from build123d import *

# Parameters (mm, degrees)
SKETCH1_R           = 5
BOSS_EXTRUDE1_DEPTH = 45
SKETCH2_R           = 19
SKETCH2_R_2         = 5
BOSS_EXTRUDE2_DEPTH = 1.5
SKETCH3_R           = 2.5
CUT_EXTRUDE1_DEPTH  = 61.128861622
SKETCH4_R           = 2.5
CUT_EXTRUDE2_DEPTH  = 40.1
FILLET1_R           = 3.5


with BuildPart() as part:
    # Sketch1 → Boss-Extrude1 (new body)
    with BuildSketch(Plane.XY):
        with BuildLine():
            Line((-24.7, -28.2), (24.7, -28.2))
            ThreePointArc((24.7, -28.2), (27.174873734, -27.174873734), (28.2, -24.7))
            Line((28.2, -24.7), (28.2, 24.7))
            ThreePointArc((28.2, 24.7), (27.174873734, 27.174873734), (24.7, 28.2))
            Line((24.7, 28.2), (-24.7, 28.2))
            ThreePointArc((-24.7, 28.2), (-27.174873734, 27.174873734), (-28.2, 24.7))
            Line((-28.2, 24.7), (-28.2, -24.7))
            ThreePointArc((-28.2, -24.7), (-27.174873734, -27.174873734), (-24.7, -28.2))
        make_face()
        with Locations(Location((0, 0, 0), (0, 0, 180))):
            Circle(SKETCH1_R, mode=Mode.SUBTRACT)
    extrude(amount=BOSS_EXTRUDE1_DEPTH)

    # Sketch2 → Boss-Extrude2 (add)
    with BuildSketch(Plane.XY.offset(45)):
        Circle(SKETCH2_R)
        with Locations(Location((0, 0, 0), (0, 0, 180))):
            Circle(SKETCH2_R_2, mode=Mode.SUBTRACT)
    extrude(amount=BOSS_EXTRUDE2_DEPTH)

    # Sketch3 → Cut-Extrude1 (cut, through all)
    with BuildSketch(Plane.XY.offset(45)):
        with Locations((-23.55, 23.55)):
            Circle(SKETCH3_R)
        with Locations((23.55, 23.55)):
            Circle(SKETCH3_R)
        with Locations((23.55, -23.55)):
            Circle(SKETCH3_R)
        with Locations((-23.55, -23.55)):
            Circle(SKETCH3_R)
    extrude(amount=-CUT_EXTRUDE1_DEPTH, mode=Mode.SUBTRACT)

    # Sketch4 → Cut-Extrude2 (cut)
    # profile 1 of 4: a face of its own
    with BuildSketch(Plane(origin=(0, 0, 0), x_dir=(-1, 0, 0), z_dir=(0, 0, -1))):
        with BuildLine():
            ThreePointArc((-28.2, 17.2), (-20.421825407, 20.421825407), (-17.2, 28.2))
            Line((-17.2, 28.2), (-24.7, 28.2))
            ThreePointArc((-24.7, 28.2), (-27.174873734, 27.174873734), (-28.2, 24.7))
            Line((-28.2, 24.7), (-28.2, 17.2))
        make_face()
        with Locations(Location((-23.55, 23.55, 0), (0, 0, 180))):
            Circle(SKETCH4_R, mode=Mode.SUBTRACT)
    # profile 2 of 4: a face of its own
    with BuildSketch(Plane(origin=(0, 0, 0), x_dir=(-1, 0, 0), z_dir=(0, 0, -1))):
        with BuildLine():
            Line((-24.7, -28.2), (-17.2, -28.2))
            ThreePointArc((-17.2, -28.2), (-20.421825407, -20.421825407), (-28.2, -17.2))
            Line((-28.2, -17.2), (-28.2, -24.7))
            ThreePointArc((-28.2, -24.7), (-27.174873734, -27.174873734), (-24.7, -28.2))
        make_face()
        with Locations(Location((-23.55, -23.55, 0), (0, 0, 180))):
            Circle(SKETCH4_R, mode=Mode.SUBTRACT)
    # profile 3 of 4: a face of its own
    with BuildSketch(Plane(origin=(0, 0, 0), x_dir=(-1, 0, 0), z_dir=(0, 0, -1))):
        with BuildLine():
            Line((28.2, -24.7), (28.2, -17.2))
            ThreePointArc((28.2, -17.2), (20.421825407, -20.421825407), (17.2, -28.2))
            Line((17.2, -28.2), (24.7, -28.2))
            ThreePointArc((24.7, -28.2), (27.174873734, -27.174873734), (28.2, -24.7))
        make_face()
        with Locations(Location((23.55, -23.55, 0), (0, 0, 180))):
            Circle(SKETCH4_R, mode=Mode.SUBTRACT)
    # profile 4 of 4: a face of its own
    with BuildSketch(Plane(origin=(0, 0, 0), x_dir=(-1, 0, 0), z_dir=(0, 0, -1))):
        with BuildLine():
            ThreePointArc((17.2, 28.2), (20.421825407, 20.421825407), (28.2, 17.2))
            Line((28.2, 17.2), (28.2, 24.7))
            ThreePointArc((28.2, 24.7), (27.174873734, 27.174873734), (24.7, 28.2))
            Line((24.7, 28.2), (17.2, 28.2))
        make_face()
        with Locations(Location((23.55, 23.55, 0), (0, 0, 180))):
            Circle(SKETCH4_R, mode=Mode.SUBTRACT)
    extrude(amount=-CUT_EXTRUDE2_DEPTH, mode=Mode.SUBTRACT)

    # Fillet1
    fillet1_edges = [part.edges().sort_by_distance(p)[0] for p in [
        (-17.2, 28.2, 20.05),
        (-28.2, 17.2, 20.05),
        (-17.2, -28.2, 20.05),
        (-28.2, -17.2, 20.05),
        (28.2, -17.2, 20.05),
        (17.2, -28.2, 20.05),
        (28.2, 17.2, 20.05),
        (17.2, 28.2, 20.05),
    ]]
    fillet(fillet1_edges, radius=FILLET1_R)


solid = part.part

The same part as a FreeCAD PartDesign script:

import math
import FreeCAD as App
import Part
import Sketcher
Q = App.Units.Quantity


def edges_at(feature, points):
    """Names of the edges that pass closest to the given points."""
    edges = feature.Shape.Edges
    near = lambda p: min(range(len(edges)), key=lambda i: edges[i].distToShape(Part.Vertex(*p))[0])
    return sorted({f"Edge{near(p) + 1}" for p in points})

doc = App.newDocument("Part")
body = doc.addObject("PartDesign::Body", "Body")

sketch1 = body.newObject("Sketcher::SketchObject", "Sketch")
sketch1.AttachmentSupport = (doc.getObject("XY_Plane"), [""])
sketch1.MapMode = "FlatFace"
sketch1.addGeometry([
    Part.LineSegment(App.Vector(-24.7, -28.2, 0), App.Vector(24.7, -28.2, 0)),
    Part.ArcOfCircle(Part.Circle(App.Vector(24.7, -24.7, 0), App.Vector(0, 0, 1), 3.5), math.radians(-90), math.radians(0)),
    Part.LineSegment(App.Vector(28.2, -24.7, 0), App.Vector(28.2, 24.7, 0)),
    Part.ArcOfCircle(Part.Circle(App.Vector(24.7, 24.7, 0), App.Vector(0, 0, 1), 3.5), math.radians(0), math.radians(90)),
    Part.LineSegment(App.Vector(24.7, 28.2, 0), App.Vector(-24.7, 28.2, 0)),
    Part.ArcOfCircle(Part.Circle(App.Vector(-24.7, 24.7, 0), App.Vector(0, 0, 1), 3.5), math.radians(90), math.radians(180)),
    Part.LineSegment(App.Vector(-28.2, 24.7, 0), App.Vector(-28.2, -24.7, 0)),
    Part.ArcOfCircle(Part.Circle(App.Vector(-24.7, -24.7, 0), App.Vector(0, 0, 1), 3.5), math.radians(-180), math.radians(-90)),
    Part.Circle(App.Vector(0, 0, 0), App.Vector(0, 0, 1), 5),
], False)
sketch1.addConstraint([
    Sketcher.Constraint("Tangent", 0, 2, 1, 1),
    Sketcher.Constraint("Tangent", 1, 2, 2, 1),
    Sketcher.Constraint("Tangent", 2, 2, 3, 1),
    Sketcher.Constraint("Tangent", 3, 2, 4, 1),
    Sketcher.Constraint("Tangent", 4, 2, 5, 1),
    Sketcher.Constraint("Tangent", 5, 2, 6, 1),
    Sketcher.Constraint("Tangent", 6, 2, 7, 1),
    Sketcher.Constraint("Tangent", 7, 2, 0, 1),
    Sketcher.Constraint("Horizontal", 0),
    Sketcher.Constraint("Vertical", 2),
    Sketcher.Constraint("Horizontal", 4),
    Sketcher.Constraint("Vertical", 6),
    Sketcher.Constraint("Coincident", 8, 3, -1, 1),
    Sketcher.Constraint("Equal", 1, 3),
    Sketcher.Constraint("Equal", 3, 5),
    Sketcher.Constraint("Equal", 5, 7),
    Sketcher.Constraint("Symmetric", 1, 3, 5, 3, -1, 1),
    Sketcher.Constraint("Equal", 4, 2),
    Sketcher.Constraint("Diameter", 8, Q("10 mm")),
    Sketcher.Constraint("Radius", 1, Q("3.5 mm")),
    Sketcher.Constraint("DistanceX", 0, 1, 0, 2, Q("49.4 mm")),
])
pad1 = body.newObject("PartDesign::Pad", "Pad")
pad1.Profile = sketch1
pad1.Length = 45

sketch2 = body.newObject("Sketcher::SketchObject", "Sketch001")
sketch2.AttachmentSupport = (doc.getObject("XY_Plane"), [""])
sketch2.MapMode = "FlatFace"
sketch2.AttachmentOffset = App.Placement(App.Vector(0, 0, 45), App.Rotation())
sketch2.addGeometry([
    Part.Circle(App.Vector(0, 0, 0), App.Vector(0, 0, 1), 19),
    Part.Circle(App.Vector(0, 0, 0), App.Vector(0, 0, 1), 5),
], False)
sketch2.addConstraint([
    Sketcher.Constraint("Coincident", 0, 3, -1, 1),
    Sketcher.Constraint("Coincident", 1, 3, -1, 1),
    Sketcher.Constraint("Diameter", 0, Q("38 mm")),
    Sketcher.Constraint("Diameter", 1, Q("10 mm")),
])
pad2 = body.newObject("PartDesign::Pad", "Pad001")
pad2.Profile = sketch2
pad2.Length = 1.5

sketch3 = body.newObject("Sketcher::SketchObject", "Sketch002")
sketch3.AttachmentSupport = (doc.getObject("XY_Plane"), [""])
sketch3.MapMode = "FlatFace"
sketch3.AttachmentOffset = App.Placement(App.Vector(0, 0, 45), App.Rotation())
sketch3.addGeometry([
    Part.Circle(App.Vector(-23.55, 23.55, 0), App.Vector(0, 0, 1), 2.5),
    Part.Circle(App.Vector(23.55, 23.55, 0), App.Vector(0, 0, 1), 2.5),
    Part.Circle(App.Vector(23.55, -23.55, 0), App.Vector(0, 0, 1), 2.5),
    Part.Circle(App.Vector(-23.55, -23.55, 0), App.Vector(0, 0, 1), 2.5),
], False)
sketch3.addConstraint([
    Sketcher.Constraint("Equal", 0, 1),
    Sketcher.Constraint("Equal", 1, 2),
    Sketcher.Constraint("Equal", 2, 3),
    Sketcher.Constraint("Symmetric", 0, 3, 2, 3, -1, 1),
    Sketcher.Constraint("Symmetric", 1, 3, 3, 3, -1, 1),
    Sketcher.Constraint("Symmetric", 0, 3, 1, 3, -2),
    Sketcher.Constraint("Diameter", 0, Q("5 mm")),
    Sketcher.Constraint("DistanceX", 0, 3, 1, 3, Q("47.1 mm")),
    Sketcher.Constraint("DistanceY", 2, 3, 1, 3, Q("47.1 mm")),
])
pocket1 = body.newObject("PartDesign::Pocket", "Pocket")
pocket1.Profile = sketch3
pocket1.Type = "ThroughAll"

sketch4 = body.newObject("Sketcher::SketchObject", "Sketch003")
sketch4.AttachmentSupport = (doc.getObject("XY_Plane"), [""])
sketch4.MapMode = "FlatFace"
sketch4.addGeometry([
    Part.ArcOfCircle(Part.Circle(App.Vector(28.2, 28.2, 0), App.Vector(0, 0, 1), 11), math.radians(180), math.radians(270)),
    Part.LineSegment(App.Vector(17.2, 28.2, 0), App.Vector(24.7, 28.2, 0)),
    Part.ArcOfCircle(Part.Circle(App.Vector(24.7, 24.7, 0), App.Vector(0, 0, 1), 3.5), math.radians(0), math.radians(90)),
    Part.LineSegment(App.Vector(28.2, 24.7, 0), App.Vector(28.2, 17.2, 0)),
    Part.Circle(App.Vector(23.55, 23.55, 0), App.Vector(0, 0, 1), 2.5),
    Part.LineSegment(App.Vector(24.7, -28.2, 0), App.Vector(17.2, -28.2, 0)),
    Part.ArcOfCircle(Part.Circle(App.Vector(28.2, -28.2, 0), App.Vector(0, 0, 1), 11), math.radians(90), math.radians(180)),
    Part.LineSegment(App.Vector(28.2, -17.2, 0), App.Vector(28.2, -24.7, 0)),
    Part.ArcOfCircle(Part.Circle(App.Vector(24.7, -24.7, 0), App.Vector(0, 0, 1), 3.5), math.radians(-90), math.radians(0)),
    Part.Circle(App.Vector(23.55, -23.55, 0), App.Vector(0, 0, 1), 2.5),
    Part.LineSegment(App.Vector(-28.2, -24.7, 0), App.Vector(-28.2, -17.2, 0)),
    Part.ArcOfCircle(Part.Circle(App.Vector(-28.2, -28.2, 0), App.Vector(0, 0, 1), 11), math.radians(0), math.radians(90)),
    Part.LineSegment(App.Vector(-17.2, -28.2, 0), App.Vector(-24.7, -28.2, 0)),
    Part.ArcOfCircle(Part.Circle(App.Vector(-24.7, -24.7, 0), App.Vector(0, 0, 1), 3.5), math.radians(-180), math.radians(-90)),
    Part.Circle(App.Vector(-23.55, -23.55, 0), App.Vector(0, 0, 1), 2.5),
    Part.ArcOfCircle(Part.Circle(App.Vector(-28.2, 28.2, 0), App.Vector(0, 0, 1), 11), math.radians(-90), math.radians(0)),
    Part.LineSegment(App.Vector(-28.2, 17.2, 0), App.Vector(-28.2, 24.7, 0)),
    Part.ArcOfCircle(Part.Circle(App.Vector(-24.7, 24.7, 0), App.Vector(0, 0, 1), 3.5), math.radians(90), math.radians(180)),
    Part.LineSegment(App.Vector(-24.7, 28.2, 0), App.Vector(-17.2, 28.2, 0)),
    Part.Circle(App.Vector(-23.55, 23.55, 0), App.Vector(0, 0, 1), 2.5),
], False)
sketch4.addConstraint([
    Sketcher.Constraint("Coincident", 0, 1, 1, 1),
    Sketcher.Constraint("Tangent", 1, 2, 2, 2),
    Sketcher.Constraint("Tangent", 2, 1, 3, 1),
    Sketcher.Constraint("Coincident", 3, 2, 0, 2),
    Sketcher.Constraint("Coincident", 5, 2, 6, 2),
    Sketcher.Constraint("Coincident", 6, 1, 7, 1),
    Sketcher.Constraint("Tangent", 7, 2, 8, 2),
    Sketcher.Constraint("Tangent", 8, 1, 5, 1),
    Sketcher.Constraint("Coincident", 10, 2, 11, 2),
    Sketcher.Constraint("Coincident", 11, 1, 12, 1),
    Sketcher.Constraint("Tangent", 12, 2, 13, 2),
    Sketcher.Constraint("Tangent", 13, 1, 10, 1),
    Sketcher.Constraint("Coincident", 15, 1, 16, 1),
    Sketcher.Constraint("Tangent", 16, 2, 17, 2),
    Sketcher.Constraint("Tangent", 17, 1, 18, 1),
    Sketcher.Constraint("Coincident", 18, 2, 15, 2),
    Sketcher.Constraint("Horizontal", 1),
    Sketcher.Constraint("Vertical", 3),
    Sketcher.Constraint("Horizontal", 5),
    Sketcher.Constraint("Vertical", 7),
    Sketcher.Constraint("Vertical", 10),
    Sketcher.Constraint("Horizontal", 12),
    Sketcher.Constraint("Vertical", 16),
    Sketcher.Constraint("Horizontal", 18),
    Sketcher.Constraint("Equal", 0, 6),
    Sketcher.Constraint("Equal", 2, 8),
    Sketcher.Constraint("Equal", 4, 9),
    Sketcher.Constraint("Equal", 6, 11),
    Sketcher.Constraint("Equal", 8, 13),
    Sketcher.Constraint("Equal", 9, 14),
    Sketcher.Constraint("Equal", 11, 15),
    Sketcher.Constraint("Equal", 13, 17),
    Sketcher.Constraint("Equal", 14, 19),
    Sketcher.Constraint("Symmetric", 0, 3, 11, 3, -1, 1),
    Sketcher.Constraint("Symmetric", 2, 3, 13, 3, -1, 1),
    Sketcher.Constraint("Symmetric", 4, 3, 14, 3, -1, 1),
    Sketcher.Constraint("Symmetric", 6, 3, 15, 3, -1, 1),
    Sketcher.Constraint("Symmetric", 8, 3, 17, 3, -1, 1),
    Sketcher.Constraint("Symmetric", 9, 3, 19, 3, -1, 1),
    Sketcher.Constraint("Symmetric", 6, 3, 11, 3, -2),
    Sketcher.Constraint("Symmetric", 8, 3, 13, 3, -2),
    Sketcher.Constraint("Symmetric", 9, 3, 14, 3, -2),
    Sketcher.Constraint("Horizontal", 15, 3, 0, 1),
    Sketcher.Constraint("Vertical", 6, 3, 2, 1),
    Sketcher.Constraint("Diameter", 4, Q("5 mm")),
    Sketcher.Constraint("Radius", 0, Q("11 mm")),
    Sketcher.Constraint("Radius", 2, Q("3.5 mm")),
    Sketcher.Constraint("DistanceX", -1, 1, 0, 3, Q("28.2 mm")),
    Sketcher.Constraint("DistanceY", -1, 1, 0, 3, Q("28.2 mm")),
    Sketcher.Constraint("DistanceY", 9, 3, 4, 3, Q("47.1 mm")),
    Sketcher.Constraint("DistanceX", 14, 3, 9, 3, Q("47.1 mm")),
])
pocket2 = body.newObject("PartDesign::Pocket", "Pocket001")
pocket2.Profile = sketch4
pocket2.Length = 40.1
pocket2.Reversed = True
doc.recompute()

fillet = body.newObject("PartDesign::Fillet", "Fillet")
fillet.Base = (pocket2, edges_at(pocket2, [
    (-17.2, 28.2, 20.05),
    (-28.2, 17.2, 20.05),
    (-17.2, -28.2, 20.05),
    (-28.2, -17.2, 20.05),
    (28.2, -17.2, 20.05),
    (17.2, -28.2, 20.05),
    (28.2, 17.2, 20.05),
    (17.2, 28.2, 20.05),
]))
fillet.Radius = 3.5

doc.recompute()
